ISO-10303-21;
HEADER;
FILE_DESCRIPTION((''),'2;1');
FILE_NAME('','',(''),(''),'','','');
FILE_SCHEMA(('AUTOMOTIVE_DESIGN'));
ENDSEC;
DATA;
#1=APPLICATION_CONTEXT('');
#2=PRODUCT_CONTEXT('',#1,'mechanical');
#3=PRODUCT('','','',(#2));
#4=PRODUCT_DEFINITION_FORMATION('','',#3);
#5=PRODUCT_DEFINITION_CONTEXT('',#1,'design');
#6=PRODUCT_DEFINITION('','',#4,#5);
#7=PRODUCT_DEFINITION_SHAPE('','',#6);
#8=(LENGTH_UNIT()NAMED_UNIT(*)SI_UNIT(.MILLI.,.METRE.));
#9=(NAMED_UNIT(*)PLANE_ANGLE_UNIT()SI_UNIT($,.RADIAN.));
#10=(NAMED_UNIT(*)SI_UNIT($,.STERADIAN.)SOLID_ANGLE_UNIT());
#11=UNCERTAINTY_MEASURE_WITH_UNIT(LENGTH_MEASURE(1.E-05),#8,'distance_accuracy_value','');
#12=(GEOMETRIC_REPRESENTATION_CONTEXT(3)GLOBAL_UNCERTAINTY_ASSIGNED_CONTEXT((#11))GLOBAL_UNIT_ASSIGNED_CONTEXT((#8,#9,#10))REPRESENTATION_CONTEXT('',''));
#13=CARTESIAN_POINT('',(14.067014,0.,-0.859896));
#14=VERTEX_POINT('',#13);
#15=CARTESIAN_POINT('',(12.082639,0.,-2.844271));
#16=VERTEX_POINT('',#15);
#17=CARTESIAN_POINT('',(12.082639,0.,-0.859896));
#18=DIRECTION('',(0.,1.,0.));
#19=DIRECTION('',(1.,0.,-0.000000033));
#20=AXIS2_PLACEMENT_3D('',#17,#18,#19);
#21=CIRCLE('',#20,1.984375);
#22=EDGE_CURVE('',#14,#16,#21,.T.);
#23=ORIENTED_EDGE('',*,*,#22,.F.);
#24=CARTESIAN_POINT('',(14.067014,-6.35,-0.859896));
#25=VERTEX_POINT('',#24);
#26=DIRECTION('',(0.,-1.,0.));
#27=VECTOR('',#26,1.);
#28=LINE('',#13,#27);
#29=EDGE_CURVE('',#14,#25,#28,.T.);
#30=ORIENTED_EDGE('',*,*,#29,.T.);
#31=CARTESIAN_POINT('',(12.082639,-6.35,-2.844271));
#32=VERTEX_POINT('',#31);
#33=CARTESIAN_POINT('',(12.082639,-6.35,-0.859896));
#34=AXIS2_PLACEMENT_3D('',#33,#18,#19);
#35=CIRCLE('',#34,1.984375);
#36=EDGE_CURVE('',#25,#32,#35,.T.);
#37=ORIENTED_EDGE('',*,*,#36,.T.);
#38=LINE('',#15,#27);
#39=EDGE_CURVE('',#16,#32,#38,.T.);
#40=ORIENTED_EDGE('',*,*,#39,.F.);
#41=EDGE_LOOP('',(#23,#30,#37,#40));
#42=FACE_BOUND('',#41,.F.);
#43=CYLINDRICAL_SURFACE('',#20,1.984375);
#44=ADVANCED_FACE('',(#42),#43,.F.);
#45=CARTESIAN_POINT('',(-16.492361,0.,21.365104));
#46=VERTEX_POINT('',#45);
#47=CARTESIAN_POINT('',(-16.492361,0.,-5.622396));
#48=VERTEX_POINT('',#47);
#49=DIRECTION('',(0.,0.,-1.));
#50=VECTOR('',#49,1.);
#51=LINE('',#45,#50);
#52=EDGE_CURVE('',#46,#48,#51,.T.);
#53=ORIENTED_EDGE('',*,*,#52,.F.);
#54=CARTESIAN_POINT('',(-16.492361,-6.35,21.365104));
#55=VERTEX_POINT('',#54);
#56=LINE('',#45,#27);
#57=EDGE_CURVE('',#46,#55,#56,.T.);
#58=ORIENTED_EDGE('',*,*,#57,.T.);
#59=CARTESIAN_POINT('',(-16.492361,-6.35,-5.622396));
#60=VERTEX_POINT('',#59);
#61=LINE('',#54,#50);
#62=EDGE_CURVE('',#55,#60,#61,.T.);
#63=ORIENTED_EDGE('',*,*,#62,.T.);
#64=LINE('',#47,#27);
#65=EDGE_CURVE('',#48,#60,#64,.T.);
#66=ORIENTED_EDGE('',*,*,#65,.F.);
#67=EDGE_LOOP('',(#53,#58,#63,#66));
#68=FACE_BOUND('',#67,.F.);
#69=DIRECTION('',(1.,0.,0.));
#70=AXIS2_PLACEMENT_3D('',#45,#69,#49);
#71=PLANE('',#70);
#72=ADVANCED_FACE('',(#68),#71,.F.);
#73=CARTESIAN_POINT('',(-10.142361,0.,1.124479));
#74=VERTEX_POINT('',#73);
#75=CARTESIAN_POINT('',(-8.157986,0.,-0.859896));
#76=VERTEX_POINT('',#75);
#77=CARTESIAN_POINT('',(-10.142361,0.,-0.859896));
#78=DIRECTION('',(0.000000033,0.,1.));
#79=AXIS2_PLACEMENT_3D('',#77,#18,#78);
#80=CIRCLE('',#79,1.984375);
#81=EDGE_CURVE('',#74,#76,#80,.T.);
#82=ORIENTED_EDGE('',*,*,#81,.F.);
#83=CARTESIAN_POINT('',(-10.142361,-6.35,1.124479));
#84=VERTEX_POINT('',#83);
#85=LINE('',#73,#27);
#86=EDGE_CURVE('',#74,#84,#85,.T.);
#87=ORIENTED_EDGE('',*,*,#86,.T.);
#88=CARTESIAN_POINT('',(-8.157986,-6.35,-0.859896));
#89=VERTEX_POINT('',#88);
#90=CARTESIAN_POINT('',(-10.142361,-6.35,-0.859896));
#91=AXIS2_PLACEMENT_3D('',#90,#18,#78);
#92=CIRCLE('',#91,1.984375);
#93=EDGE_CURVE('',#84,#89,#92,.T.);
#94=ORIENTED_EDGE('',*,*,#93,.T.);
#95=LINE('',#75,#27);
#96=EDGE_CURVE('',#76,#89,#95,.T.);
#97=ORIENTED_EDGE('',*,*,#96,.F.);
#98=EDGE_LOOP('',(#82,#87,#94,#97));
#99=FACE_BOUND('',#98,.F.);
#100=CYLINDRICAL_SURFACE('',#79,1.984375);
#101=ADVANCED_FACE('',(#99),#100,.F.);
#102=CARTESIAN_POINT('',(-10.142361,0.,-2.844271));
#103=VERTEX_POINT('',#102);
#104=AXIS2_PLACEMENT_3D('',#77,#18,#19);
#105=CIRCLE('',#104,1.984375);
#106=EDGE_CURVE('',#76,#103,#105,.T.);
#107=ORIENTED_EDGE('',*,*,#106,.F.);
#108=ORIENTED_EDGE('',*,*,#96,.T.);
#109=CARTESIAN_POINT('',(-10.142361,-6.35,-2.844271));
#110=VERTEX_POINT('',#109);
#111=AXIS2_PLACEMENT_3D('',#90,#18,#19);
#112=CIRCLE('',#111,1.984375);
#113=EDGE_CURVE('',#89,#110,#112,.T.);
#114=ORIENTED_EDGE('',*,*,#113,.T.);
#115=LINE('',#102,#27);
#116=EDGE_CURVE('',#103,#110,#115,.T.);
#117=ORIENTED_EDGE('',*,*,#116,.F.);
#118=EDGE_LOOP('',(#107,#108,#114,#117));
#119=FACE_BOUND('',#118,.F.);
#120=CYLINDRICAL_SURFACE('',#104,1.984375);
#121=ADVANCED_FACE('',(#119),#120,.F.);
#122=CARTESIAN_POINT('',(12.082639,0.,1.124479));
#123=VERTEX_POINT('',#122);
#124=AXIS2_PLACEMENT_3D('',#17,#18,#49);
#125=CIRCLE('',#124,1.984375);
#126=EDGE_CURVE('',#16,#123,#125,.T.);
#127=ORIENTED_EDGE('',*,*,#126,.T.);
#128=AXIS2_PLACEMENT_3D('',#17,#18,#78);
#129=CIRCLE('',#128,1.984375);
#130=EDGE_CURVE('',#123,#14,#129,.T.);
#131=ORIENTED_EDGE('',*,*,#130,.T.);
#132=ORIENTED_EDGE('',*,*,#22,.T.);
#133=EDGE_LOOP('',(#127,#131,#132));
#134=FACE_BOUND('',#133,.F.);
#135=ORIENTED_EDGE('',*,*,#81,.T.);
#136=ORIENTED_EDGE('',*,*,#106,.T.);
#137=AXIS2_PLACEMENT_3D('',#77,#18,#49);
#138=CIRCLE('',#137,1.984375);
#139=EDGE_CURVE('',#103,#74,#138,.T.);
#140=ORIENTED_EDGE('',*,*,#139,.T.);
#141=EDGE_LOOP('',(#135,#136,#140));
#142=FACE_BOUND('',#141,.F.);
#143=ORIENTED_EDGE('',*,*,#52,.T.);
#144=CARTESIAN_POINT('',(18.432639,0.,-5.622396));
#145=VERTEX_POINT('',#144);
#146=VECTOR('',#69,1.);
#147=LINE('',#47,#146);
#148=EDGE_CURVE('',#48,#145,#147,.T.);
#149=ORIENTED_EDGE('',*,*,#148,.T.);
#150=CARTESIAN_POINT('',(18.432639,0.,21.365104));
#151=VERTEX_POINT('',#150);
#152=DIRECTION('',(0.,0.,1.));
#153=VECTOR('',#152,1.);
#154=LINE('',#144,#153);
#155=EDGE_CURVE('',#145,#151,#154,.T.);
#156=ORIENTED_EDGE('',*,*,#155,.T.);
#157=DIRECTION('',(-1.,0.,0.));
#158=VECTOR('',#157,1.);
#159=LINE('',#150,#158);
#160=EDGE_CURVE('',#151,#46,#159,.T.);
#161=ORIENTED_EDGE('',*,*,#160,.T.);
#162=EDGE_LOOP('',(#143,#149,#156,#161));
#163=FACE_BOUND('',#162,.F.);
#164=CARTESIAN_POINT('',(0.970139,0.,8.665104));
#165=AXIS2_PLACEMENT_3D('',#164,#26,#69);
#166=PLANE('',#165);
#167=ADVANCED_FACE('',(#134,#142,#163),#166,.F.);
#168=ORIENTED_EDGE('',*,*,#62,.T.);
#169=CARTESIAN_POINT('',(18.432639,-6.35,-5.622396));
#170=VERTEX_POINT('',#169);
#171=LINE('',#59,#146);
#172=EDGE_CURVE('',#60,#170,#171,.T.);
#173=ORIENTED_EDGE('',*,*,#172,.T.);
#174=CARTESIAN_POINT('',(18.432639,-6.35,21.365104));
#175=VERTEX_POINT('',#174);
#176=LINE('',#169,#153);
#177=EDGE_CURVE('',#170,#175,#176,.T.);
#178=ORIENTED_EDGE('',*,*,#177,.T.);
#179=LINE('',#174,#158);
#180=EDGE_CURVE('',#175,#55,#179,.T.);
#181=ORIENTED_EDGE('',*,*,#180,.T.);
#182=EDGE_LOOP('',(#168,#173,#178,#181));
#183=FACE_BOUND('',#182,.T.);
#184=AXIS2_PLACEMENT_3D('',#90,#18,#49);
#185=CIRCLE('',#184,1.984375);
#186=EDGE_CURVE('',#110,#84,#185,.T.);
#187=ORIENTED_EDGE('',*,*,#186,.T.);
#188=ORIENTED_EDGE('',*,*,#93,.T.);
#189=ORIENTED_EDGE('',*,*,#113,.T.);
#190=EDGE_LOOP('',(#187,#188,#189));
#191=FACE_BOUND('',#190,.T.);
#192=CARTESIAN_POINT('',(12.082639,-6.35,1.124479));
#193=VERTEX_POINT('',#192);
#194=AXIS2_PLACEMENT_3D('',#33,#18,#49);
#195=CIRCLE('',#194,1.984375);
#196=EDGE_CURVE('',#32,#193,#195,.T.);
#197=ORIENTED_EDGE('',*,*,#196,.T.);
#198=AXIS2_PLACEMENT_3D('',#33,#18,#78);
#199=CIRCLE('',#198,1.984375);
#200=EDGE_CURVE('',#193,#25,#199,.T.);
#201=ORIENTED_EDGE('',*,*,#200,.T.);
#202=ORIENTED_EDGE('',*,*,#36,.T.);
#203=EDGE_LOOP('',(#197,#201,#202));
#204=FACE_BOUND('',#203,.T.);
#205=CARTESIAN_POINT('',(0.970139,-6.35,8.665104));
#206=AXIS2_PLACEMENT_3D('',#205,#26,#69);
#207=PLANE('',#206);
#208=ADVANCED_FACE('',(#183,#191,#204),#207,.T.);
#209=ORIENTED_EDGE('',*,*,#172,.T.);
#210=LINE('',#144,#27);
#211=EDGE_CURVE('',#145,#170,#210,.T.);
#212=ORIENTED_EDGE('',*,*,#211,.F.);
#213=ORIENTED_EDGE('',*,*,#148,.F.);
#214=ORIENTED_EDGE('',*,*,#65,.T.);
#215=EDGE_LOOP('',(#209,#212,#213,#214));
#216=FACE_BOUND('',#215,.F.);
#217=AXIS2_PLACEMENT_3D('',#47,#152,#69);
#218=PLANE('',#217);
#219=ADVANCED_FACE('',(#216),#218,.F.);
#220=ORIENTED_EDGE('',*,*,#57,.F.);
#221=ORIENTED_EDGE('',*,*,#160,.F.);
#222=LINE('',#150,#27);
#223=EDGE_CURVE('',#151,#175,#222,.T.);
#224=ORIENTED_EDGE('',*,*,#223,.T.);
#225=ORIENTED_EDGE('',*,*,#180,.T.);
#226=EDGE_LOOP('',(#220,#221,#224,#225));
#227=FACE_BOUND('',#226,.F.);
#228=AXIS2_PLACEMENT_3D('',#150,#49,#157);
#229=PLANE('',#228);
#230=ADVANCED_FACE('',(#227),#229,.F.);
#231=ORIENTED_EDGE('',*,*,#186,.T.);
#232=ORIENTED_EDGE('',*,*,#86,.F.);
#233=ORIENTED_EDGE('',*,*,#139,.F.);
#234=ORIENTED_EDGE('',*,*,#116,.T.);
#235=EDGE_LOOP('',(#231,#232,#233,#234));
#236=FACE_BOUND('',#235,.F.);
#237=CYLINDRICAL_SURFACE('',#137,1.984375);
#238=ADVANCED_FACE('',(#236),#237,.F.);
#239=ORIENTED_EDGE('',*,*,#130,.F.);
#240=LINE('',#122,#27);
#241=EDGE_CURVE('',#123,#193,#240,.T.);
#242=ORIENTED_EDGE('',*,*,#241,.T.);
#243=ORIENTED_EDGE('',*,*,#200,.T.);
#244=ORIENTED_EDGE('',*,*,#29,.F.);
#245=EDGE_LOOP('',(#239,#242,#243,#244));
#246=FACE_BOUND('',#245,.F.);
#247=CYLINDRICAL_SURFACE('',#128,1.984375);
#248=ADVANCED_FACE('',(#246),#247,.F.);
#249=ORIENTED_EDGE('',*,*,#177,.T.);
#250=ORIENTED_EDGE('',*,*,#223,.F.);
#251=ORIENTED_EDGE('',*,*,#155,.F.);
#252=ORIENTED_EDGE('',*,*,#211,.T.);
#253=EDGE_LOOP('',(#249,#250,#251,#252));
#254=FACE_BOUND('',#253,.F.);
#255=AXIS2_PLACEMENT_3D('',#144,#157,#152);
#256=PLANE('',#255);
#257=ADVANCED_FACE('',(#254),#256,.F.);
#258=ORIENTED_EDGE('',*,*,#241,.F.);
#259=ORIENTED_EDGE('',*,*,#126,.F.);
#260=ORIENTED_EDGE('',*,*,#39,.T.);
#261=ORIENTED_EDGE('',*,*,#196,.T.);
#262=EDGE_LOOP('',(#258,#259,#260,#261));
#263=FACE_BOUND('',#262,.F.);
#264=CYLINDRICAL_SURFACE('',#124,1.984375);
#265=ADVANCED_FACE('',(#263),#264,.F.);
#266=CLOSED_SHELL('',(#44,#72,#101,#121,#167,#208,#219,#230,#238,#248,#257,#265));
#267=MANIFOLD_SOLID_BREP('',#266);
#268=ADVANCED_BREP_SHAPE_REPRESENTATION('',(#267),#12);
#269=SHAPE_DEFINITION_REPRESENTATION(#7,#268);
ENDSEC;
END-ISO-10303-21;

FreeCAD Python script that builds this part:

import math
import FreeCAD as App
import Part
import Sketcher
from FreeCAD import Vector
Q = App.Units.Quantity


def add_polygon(sketch, points):
    """Adds a closed chain of lines whose ends are joined by coincident constraints."""
    first, n = sketch.GeometryCount, len(points)
    for a, b in zip(points, points[1:] + points[:1]):
        sketch.addGeometry(Part.LineSegment(App.Vector(*a, 0), App.Vector(*b, 0)), False)
    for i in range(n):
        sketch.addConstraint(Sketcher.Constraint("Coincident", first + i, 2, first + (i + 1) % n, 1))

doc = App.newDocument("Part")
body = doc.addObject("PartDesign::Body", "Body")

# Sketch on XZ plane
sketch1 = body.newObject("Sketcher::SketchObject", "Sketch")
sketch1.AttachmentSupport = (doc.getObject("XZ_Plane"), [""])
sketch1.MapMode = "FlatFace"
add_polygon(sketch1, [(-16.492361, -5.622396), (18.432639, -5.622396), (18.432639, 21.365104), (-16.492361, 21.365104)])  # lines 0-3
sketch1.addGeometry(Part.ArcOfCircle(Part.Circle(Vector(-10.142361, -0.859896, 0), Vector(0, 0, 1), 1.984375), math.radians(0.000002), math.radians(89.999998)), False)  # 4
sketch1.addGeometry(Part.ArcOfCircle(Part.Circle(Vector(-10.142361, -0.859896, 0), Vector(0, 0, 1), 1.984375), math.radians(-89.999998), math.radians(-0.000002)), False)  # 5
sketch1.addGeometry(Part.ArcOfCircle(Part.Circle(Vector(-10.142361, -0.859896, 0), Vector(0, 0, 1), 1.984375), math.radians(90), math.radians(270)), False)  # 6
sketch1.addGeometry(Part.ArcOfCircle(Part.Circle(Vector(12.082639, -0.859896, 0), Vector(0, 0, 1), 1.984375), math.radians(0.000002), math.radians(89.999998)), False)  # 7
sketch1.addGeometry(Part.ArcOfCircle(Part.Circle(Vector(12.082639, -0.859896, 0), Vector(0, 0, 1), 1.984375), math.radians(-89.999998), math.radians(-0.000002)), False)  # 8
sketch1.addGeometry(Part.ArcOfCircle(Part.Circle(Vector(12.082639, -0.859896, 0), Vector(0, 0, 1), 1.984375), math.radians(90), math.radians(270)), False)  # 9
sketch1.addConstraint([
    Sketcher.Constraint("Tangent", 4, 1, 5, 2),
    Sketcher.Constraint("Tangent", 5, 1, 6, 2),
    Sketcher.Constraint("Tangent", 6, 1, 4, 2),
    Sketcher.Constraint("Tangent", 7, 1, 8, 2),
    Sketcher.Constraint("Tangent", 8, 1, 9, 2),
    Sketcher.Constraint("Tangent", 9, 1, 7, 2),
    Sketcher.Constraint("Horizontal", 0),
    Sketcher.Constraint("Vertical", 1),
    Sketcher.Constraint("Horizontal", 2),
    Sketcher.Constraint("Vertical", 3),
    Sketcher.Constraint("Equal", 6, 7),
    Sketcher.Constraint("Horizontal", 6, 3, 7, 3),
    Sketcher.Constraint("Horizontal", 9, 3, 4, 1),
    Sketcher.Constraint("Horizontal", 4, 1, 7, 1),
    Sketcher.Constraint("Vertical", 6, 3, 5, 1),
    Sketcher.Constraint("Vertical", 5, 1, 6, 1),
    Sketcher.Constraint("Vertical", 9, 3, 8, 1),
    Sketcher.Constraint("Vertical", 8, 1, 9, 1),
    Sketcher.Constraint("Radius", 4, Q("0.078125 in")),
    Sketcher.Constraint("DistanceX", 0, 1, 0, 2, Q("1.375 in")),
    Sketcher.Constraint("DistanceY", 1, 1, 1, 2, Q("1.0625 in")),
    Sketcher.Constraint("DistanceX", 9, 3, 0, 2, Q("0.25 in")),
    Sketcher.Constraint("DistanceX", 2, 2, 5, 3, Q("0.25 in")),
    Sketcher.Constraint("DistanceY", 0, 2, 9, 3, Q("0.1875 in")),
    Sketcher.Constraint("DistanceX", 4, 3, -1, 1, 10.142361),
    Sketcher.Constraint("DistanceY", 5, 1, -1, 1, 2.844271),
])
pad1 = body.newObject("PartDesign::Pad", "Pad")
pad1.Profile = sketch1
pad1.Length = Q("0.25 in")

doc.recompute()
